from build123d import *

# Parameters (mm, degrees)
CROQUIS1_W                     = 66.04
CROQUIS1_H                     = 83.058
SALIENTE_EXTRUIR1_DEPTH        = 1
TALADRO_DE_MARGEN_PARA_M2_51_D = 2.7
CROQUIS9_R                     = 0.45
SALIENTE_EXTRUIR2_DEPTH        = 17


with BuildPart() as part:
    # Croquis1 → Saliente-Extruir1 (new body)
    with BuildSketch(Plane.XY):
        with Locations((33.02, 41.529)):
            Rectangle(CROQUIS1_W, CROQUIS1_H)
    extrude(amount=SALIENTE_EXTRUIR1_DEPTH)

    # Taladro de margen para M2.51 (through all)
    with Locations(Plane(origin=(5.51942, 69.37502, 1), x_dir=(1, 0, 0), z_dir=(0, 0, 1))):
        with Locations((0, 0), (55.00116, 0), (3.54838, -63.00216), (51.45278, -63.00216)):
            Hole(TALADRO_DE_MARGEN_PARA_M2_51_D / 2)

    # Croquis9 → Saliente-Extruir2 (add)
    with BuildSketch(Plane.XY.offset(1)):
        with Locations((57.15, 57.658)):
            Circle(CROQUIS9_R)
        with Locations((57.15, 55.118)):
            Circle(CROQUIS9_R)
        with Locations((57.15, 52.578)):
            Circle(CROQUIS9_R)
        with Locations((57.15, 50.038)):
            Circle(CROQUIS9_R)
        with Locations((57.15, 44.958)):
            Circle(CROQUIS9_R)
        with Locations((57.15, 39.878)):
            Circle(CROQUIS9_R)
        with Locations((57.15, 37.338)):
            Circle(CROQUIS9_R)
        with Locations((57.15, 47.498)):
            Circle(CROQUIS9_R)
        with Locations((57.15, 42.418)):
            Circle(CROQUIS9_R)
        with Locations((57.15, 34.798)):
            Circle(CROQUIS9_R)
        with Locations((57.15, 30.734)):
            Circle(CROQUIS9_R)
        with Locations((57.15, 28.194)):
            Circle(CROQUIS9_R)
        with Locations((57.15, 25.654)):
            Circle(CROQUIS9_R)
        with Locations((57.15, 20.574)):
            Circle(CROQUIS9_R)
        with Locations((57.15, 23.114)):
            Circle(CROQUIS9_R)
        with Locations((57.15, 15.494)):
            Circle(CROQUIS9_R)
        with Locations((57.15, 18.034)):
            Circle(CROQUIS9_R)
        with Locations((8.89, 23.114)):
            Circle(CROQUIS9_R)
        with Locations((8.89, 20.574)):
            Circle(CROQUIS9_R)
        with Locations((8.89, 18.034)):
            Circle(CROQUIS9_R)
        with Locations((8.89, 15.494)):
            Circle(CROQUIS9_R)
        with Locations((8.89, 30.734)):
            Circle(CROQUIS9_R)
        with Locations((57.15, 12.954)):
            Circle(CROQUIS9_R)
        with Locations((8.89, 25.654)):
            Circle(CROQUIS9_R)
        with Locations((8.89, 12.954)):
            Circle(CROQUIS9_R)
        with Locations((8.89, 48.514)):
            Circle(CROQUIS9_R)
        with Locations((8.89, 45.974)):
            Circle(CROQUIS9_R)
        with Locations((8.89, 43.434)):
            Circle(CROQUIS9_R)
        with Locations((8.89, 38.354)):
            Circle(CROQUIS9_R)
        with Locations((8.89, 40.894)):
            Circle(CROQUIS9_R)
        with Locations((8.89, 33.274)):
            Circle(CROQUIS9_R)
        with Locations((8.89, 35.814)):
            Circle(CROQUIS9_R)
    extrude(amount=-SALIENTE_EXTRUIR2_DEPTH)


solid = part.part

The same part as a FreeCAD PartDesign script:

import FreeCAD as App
import Part
import Sketcher
Q = App.Units.Quantity

doc = App.newDocument("Part")
body = doc.addObject("PartDesign::Body", "Body")

sketch1 = body.newObject("Sketcher::SketchObject", "Sketch")
sketch1.AttachmentSupport = (doc.getObject("XY_Plane"), [""])
sketch1.MapMode = "FlatFace"
sketch1.addGeometry([
    Part.LineSegment(App.Vector(0, 83.058, 0), App.Vector(0, 0, 0)),
    Part.LineSegment(App.Vector(0, 0, 0), App.Vector(66.04, 0, 0)),
    Part.LineSegment(App.Vector(66.04, 0, 0), App.Vector(66.04, 83.058, 0)),
    Part.LineSegment(App.Vector(66.04, 83.058, 0), App.Vector(0, 83.058, 0)),
], False)
sketch1.addConstraint([
    Sketcher.Constraint("Coincident", 0, 2, 1, 1),
    Sketcher.Constraint("Coincident", 1, 2, 2, 1),
    Sketcher.Constraint("Coincident", 2, 2, 3, 1),
    Sketcher.Constraint("Coincident", 3, 2, 0, 1),
    Sketcher.Constraint("Vertical", 0),
    Sketcher.Constraint("Horizontal", 1),
    Sketcher.Constraint("Vertical", 2),
    Sketcher.Constraint("Horizontal", 3),
    Sketcher.Constraint("Coincident", 0, 2, -1, 1),
    Sketcher.Constraint("DistanceX", 1, 1, 1, 2, Q("66.04 mm")),
    Sketcher.Constraint("DistanceY", 0, 2, 0, 1, Q("83.058 mm")),
])
pad1 = body.newObject("PartDesign::Pad", "Pad")
pad1.Profile = sketch1
pad1.Length = 1

sketch2 = body.newObject("Sketcher::SketchObject", "Sketch001")
sketch2.AttachmentSupport = (doc.getObject("XY_Plane"), [""])
sketch2.MapMode = "FlatFace"
sketch2.AttachmentOffset = App.Placement(App.Vector(0, 0, 1), App.Rotation())
sketch2.addGeometry([
    Part.Circle(App.Vector(5.51942, 69.37502, 0), App.Vector(0, 0, 1), 1.35),
    Part.Circle(App.Vector(60.52058, 69.37502, 0), App.Vector(0, 0, 1), 1.35),
    Part.Circle(App.Vector(9.0678, 6.37286, 0), App.Vector(0, 0, 1), 1.35),
    Part.Circle(App.Vector(56.9722, 6.37286, 0), App.Vector(0, 0, 1), 1.35),
], False)
sketch2.addConstraint([
    Sketcher.Constraint("Equal", 0, 1),
    Sketcher.Constraint("Equal", 1, 2),
    Sketcher.Constraint("Equal", 2, 3),
    Sketcher.Constraint("Horizontal", 0, 3, 1, 3),
    Sketcher.Constraint("Horizontal", 2, 3, 3, 3),
    Sketcher.Constraint("Diameter", 0, Q("2.7 mm")),
    Sketcher.Constraint("DistanceX", -1, 1, 2, 3, Q("9.0678 mm")),
    Sketcher.Constraint("DistanceX", -1, 1, 3, 3, Q("56.9722 mm")),
    Sketcher.Constraint("DistanceX", -1, 1, 0, 3, Q("5.51942 mm")),
    Sketcher.Constraint("DistanceY", -1, 1, 0, 3, Q("69.37502 mm")),
    Sketcher.Constraint("DistanceX", -1, 1, 1, 3, Q("60.52058 mm")),
    Sketcher.Constraint("DistanceY", -1, 1, 2, 3, Q("6.37286 mm")),
])
doc.recompute()
hole = body.newObject("PartDesign::Hole", "Hole")
hole.Profile = sketch2
hole.ThreadType = "None"
hole.Diameter = 2.7
hole.DepthType = "ThroughAll"

sketch3 = body.newObject("Sketcher::SketchObject", "Sketch002")
sketch3.AttachmentSupport = (doc.getObject("XY_Plane"), [""])
sketch3.MapMode = "FlatFace"
sketch3.AttachmentOffset = App.Placement(App.Vector(0, 0, 1), App.Rotation())
sketch3.addGeometry([
    Part.Circle(App.Vector(57.15, 57.658, 0), App.Vector(0, 0, 1), 0.45),
    Part.Circle(App.Vector(57.15, 55.118, 0), App.Vector(0, 0, 1), 0.45),
    Part.Circle(App.Vector(57.15, 52.578, 0), App.Vector(0, 0, 1), 0.45),
    Part.Circle(App.Vector(57.15, 50.038, 0), App.Vector(0, 0, 1), 0.45),
    Part.Circle(App.Vector(57.15, 44.958, 0), App.Vector(0, 0, 1), 0.45),
    Part.Circle(App.Vector(57.15, 39.878, 0), App.Vector(0, 0, 1), 0.45),
    Part.Circle(App.Vector(57.15, 37.338, 0), App.Vector(0, 0, 1), 0.45),
    Part.Circle(App.Vector(57.15, 47.498, 0), App.Vector(0, 0, 1), 0.45),
    Part.Circle(App.Vector(57.15, 42.418, 0), App.Vector(0, 0, 1), 0.45),
    Part.Circle(App.Vector(57.15, 34.798, 0), App.Vector(0, 0, 1), 0.45),
    Part.Circle(App.Vector(57.15, 30.734, 0), App.Vector(0, 0, 1), 0.45),
    Part.Circle(App.Vector(57.15, 28.194, 0), App.Vector(0, 0, 1), 0.45),
    Part.Circle(App.Vector(57.15, 25.654, 0), App.Vector(0, 0, 1), 0.45),
    Part.Circle(App.Vector(57.15, 20.574, 0), App.Vector(0, 0, 1), 0.45),
    Part.Circle(App.Vector(57.15, 23.114, 0), App.Vector(0, 0, 1), 0.45),
    Part.Circle(App.Vector(57.15, 15.494, 0), App.Vector(0, 0, 1), 0.45),
    Part.Circle(App.Vector(57.15, 18.034, 0), App.Vector(0, 0, 1), 0.45),
    Part.Circle(App.Vector(8.89, 23.114, 0), App.Vector(0, 0, 1), 0.45),
    Part.Circle(App.Vector(8.89, 20.574, 0), App.Vector(0, 0, 1), 0.45),
    Part.Circle(App.Vector(8.89, 18.034, 0), App.Vector(0, 0, 1), 0.45),
    Part.Circle(App.Vector(8.89, 15.494, 0), App.Vector(0, 0, 1), 0.45),
    Part.Circle(App.Vector(8.89, 30.734, 0), App.Vector(0, 0, 1), 0.45),
    Part.Circle(App.Vector(57.15, 12.954, 0), App.Vector(0, 0, 1), 0.45),
    Part.Circle(App.Vector(8.89, 25.654, 0), App.Vector(0, 0, 1), 0.45),
    Part.Circle(App.Vector(8.89, 12.954, 0), App.Vector(0, 0, 1), 0.45),
    Part.Circle(App.Vector(8.89, 48.514, 0), App.Vector(0, 0, 1), 0.45),
    Part.Circle(App.Vector(8.89, 45.974, 0), App.Vector(0, 0, 1), 0.45),
    Part.Circle(App.Vector(8.89, 43.434, 0), App.Vector(0, 0, 1), 0.45),
    Part.Circle(App.Vector(8.89, 38.354, 0), App.Vector(0, 0, 1), 0.45),
    Part.Circle(App.Vector(8.89, 40.894, 0), App.Vector(0, 0, 1), 0.45),
    Part.Circle(App.Vector(8.89, 33.274, 0), App.Vector(0, 0, 1), 0.45),
    Part.Circle(App.Vector(8.89, 35.814, 0), App.Vector(0, 0, 1), 0.45),
], False)
sketch3.addConstraint([
    Sketcher.Constraint("Equal", 0, 1),
    Sketcher.Constraint("Equal", 1, 2),
    Sketcher.Constraint("Equal", 2, 3),
    Sketcher.Constraint("Equal", 3, 4),
    Sketcher.Constraint("Equal", 4, 5),
    Sketcher.Constraint("Equal", 5, 6),
    Sketcher.Constraint("Equal", 6, 7),
    Sketcher.Constraint("Equal", 7, 8),
    Sketcher.Constraint("Equal", 8, 9),
    Sketcher.Constraint("Equal", 9, 10),
    Sketcher.Constraint("Equal", 10, 11),
    Sketcher.Constraint("Equal", 11, 12),
    Sketcher.Constraint("Equal", 12, 13),
    Sketcher.Constraint("Equal", 13, 14),
    Sketcher.Constraint("Equal", 14, 15),
    Sketcher.Constraint("Equal", 15, 16),
    Sketcher.Constraint("Equal", 16, 17),
    Sketcher.Constraint("Equal", 17, 18),
    Sketcher.Constraint("Equal", 18, 19),
    Sketcher.Constraint("Equal", 19, 20),
    Sketcher.Constraint("Equal", 20, 21),
    Sketcher.Constraint("Equal", 21, 22),
    Sketcher.Constraint("Equal", 22, 23),
    Sketcher.Constraint("Equal", 23, 24),
    Sketcher.Constraint("Equal", 24, 25),
    Sketcher.Constraint("Equal", 25, 26),
    Sketcher.Constraint("Equal", 26, 27),
    Sketcher.Constraint("Equal", 27, 28),
    Sketcher.Constraint("Equal", 28, 29),
    Sketcher.Constraint("Equal", 29, 30),
    Sketcher.Constraint("Equal", 30, 31),
    Sketcher.Constraint("Horizontal", 14, 3, 17, 3),
    Sketcher.Constraint("Horizontal", 13, 3, 18, 3),
    Sketcher.Constraint("Horizontal", 16, 3, 19, 3),
    Sketcher.Constraint("Horizontal", 15, 3, 20, 3),
    Sketcher.Constraint("Horizontal", 10, 3, 21, 3),
    Sketcher.Constraint("Horizontal", 12, 3, 23, 3),
    Sketcher.Constraint("Horizontal", 22, 3, 24, 3),
    Sketcher.Constraint("Vertical", 0, 3, 1, 3),
    Sketcher.Constraint("Vertical", 1, 3, 2, 3),
    Sketcher.Constraint("Vertical", 2, 3, 3, 3),
    Sketcher.Constraint("Vertical", 3, 3, 4, 3),
    Sketcher.Constraint("Vertical", 4, 3, 5, 3),
    Sketcher.Constraint("Vertical", 5, 3, 6, 3),
    Sketcher.Constraint("Vertical", 6, 3, 7, 3),
    Sketcher.Constraint("Vertical", 7, 3, 8, 3),
    Sketcher.Constraint("Vertical", 8, 3, 9, 3),
    Sketcher.Constraint("Vertical", 9, 3, 10, 3),
    Sketcher.Constraint("Vertical", 10, 3, 11, 3),
    Sketcher.Constraint("Vertical", 11, 3, 12, 3),
    Sketcher.Constraint("Vertical", 12, 3, 13, 3),
    Sketcher.Constraint("Vertical", 13, 3, 14, 3),
    Sketcher.Constraint("Vertical", 14, 3, 15, 3),
    Sketcher.Constraint("Vertical", 15, 3, 16, 3),
    Sketcher.Constraint("Vertical", 17, 3, 18, 3),
    Sketcher.Constraint("Vertical", 18, 3, 19, 3),
    Sketcher.Constraint("Vertical", 19, 3, 20, 3),
    Sketcher.Constraint("Vertical", 20, 3, 21, 3),
    Sketcher.Constraint("Vertical", 16, 3, 22, 3),
    Sketcher.Constraint("Vertical", 21, 3, 23, 3),
    Sketcher.Constraint("Vertical", 23, 3, 24, 3),
    Sketcher.Constraint("Vertical", 24, 3, 25, 3),
    Sketcher.Constraint("Vertical", 25, 3, 26, 3),
    Sketcher.Constraint("Vertical", 26, 3, 27, 3),
    Sketcher.Constraint("Vertical", 27, 3, 28, 3),
    Sketcher.Constraint("Vertical", 28, 3, 29, 3),
    Sketcher.Constraint("Vertical", 29, 3, 30, 3),
    Sketcher.Constraint("Vertical", 30, 3, 31, 3),
    Sketcher.Constraint("Diameter", 0, Q("0.9 mm")),
    Sketcher.Constraint("DistanceY", 4, 3, 0, 3, Q("12.7 mm")),
    Sketcher.Constraint("DistanceY", 5, 3, 2, 3, Q("12.7 mm")),
    Sketcher.Constraint("DistanceY", 6, 3, 3, 3, Q("12.7 mm")),
    Sketcher.Constraint("DistanceY", 9, 3, 7, 3, Q("12.7 mm")),
    Sketcher.Constraint("DistanceY", 15, 3, 11, 3, Q("12.7 mm")),
    Sketcher.Constraint("DistanceY", 19, 3, 21, 3, Q("12.7 mm")),
    Sketcher.Constraint("DistanceY", 22, 3, 12, 3, Q("12.7 mm")),
    Sketcher.Constraint("DistanceY", 17, 3, 25, 3, Q("25.4 mm")),
    Sketcher.Constraint("DistanceY", 18, 3, 26, 3, Q("25.4 mm")),
    Sketcher.Constraint("DistanceY", 21, 3, 27, 3, Q("12.7 mm")),
    Sketcher.Constraint("DistanceY", 23, 3, 28, 3, Q("12.7 mm")),
    Sketcher.Constraint("DistanceX", -1, 1, 0, 3, Q("57.15 mm")),
    Sketcher.Constraint("DistanceX", -1, 1, 17, 3, Q("8.89 mm")),
    Sketcher.Constraint("DistanceY", 1, 3, 0, 3, Q("2.54 mm")),
    Sketcher.Constraint("DistanceY", 2, 3, 1, 3, Q("2.54 mm")),
    Sketcher.Constraint("DistanceY", 3, 3, 2, 3, Q("2.54 mm")),
    Sketcher.Constraint("DistanceY", 7, 3, 3, 3, Q("2.54 mm")),
    Sketcher.Constraint("DistanceY", 8, 3, 4, 3, Q("2.54 mm")),
    Sketcher.Constraint("DistanceY", 11, 3, 10, 3, Q("2.54 mm")),
    Sketcher.Constraint("DistanceY", 12, 3, 11, 3, Q("2.54 mm")),
    Sketcher.Constraint("DistanceY", 13, 3, 12, 3, Q("5.08 mm")),
    Sketcher.Constraint("DistanceY", 14, 3, 12, 3, Q("2.54 mm")),
    Sketcher.Constraint("DistanceY", 29, 3, 27, 3, Q("2.54 mm")),
    Sketcher.Constraint("DistanceY", 21, 3, 30, 3, Q("2.54 mm")),
    Sketcher.Constraint("DistanceY", 31, 3, 28, 3, Q("2.54 mm")),
    Sketcher.Constraint("DistanceY", -1, 1, 0, 3, Q("57.658 mm")),
    Sketcher.Constraint("DistanceY", -1, 1, 10, 3, Q("30.734 mm")),
])
pad2 = body.newObject("PartDesign::Pad", "Pad001")
pad2.Profile = sketch3
pad2.Length = 17
pad2.Reversed = True

doc.recompute()
